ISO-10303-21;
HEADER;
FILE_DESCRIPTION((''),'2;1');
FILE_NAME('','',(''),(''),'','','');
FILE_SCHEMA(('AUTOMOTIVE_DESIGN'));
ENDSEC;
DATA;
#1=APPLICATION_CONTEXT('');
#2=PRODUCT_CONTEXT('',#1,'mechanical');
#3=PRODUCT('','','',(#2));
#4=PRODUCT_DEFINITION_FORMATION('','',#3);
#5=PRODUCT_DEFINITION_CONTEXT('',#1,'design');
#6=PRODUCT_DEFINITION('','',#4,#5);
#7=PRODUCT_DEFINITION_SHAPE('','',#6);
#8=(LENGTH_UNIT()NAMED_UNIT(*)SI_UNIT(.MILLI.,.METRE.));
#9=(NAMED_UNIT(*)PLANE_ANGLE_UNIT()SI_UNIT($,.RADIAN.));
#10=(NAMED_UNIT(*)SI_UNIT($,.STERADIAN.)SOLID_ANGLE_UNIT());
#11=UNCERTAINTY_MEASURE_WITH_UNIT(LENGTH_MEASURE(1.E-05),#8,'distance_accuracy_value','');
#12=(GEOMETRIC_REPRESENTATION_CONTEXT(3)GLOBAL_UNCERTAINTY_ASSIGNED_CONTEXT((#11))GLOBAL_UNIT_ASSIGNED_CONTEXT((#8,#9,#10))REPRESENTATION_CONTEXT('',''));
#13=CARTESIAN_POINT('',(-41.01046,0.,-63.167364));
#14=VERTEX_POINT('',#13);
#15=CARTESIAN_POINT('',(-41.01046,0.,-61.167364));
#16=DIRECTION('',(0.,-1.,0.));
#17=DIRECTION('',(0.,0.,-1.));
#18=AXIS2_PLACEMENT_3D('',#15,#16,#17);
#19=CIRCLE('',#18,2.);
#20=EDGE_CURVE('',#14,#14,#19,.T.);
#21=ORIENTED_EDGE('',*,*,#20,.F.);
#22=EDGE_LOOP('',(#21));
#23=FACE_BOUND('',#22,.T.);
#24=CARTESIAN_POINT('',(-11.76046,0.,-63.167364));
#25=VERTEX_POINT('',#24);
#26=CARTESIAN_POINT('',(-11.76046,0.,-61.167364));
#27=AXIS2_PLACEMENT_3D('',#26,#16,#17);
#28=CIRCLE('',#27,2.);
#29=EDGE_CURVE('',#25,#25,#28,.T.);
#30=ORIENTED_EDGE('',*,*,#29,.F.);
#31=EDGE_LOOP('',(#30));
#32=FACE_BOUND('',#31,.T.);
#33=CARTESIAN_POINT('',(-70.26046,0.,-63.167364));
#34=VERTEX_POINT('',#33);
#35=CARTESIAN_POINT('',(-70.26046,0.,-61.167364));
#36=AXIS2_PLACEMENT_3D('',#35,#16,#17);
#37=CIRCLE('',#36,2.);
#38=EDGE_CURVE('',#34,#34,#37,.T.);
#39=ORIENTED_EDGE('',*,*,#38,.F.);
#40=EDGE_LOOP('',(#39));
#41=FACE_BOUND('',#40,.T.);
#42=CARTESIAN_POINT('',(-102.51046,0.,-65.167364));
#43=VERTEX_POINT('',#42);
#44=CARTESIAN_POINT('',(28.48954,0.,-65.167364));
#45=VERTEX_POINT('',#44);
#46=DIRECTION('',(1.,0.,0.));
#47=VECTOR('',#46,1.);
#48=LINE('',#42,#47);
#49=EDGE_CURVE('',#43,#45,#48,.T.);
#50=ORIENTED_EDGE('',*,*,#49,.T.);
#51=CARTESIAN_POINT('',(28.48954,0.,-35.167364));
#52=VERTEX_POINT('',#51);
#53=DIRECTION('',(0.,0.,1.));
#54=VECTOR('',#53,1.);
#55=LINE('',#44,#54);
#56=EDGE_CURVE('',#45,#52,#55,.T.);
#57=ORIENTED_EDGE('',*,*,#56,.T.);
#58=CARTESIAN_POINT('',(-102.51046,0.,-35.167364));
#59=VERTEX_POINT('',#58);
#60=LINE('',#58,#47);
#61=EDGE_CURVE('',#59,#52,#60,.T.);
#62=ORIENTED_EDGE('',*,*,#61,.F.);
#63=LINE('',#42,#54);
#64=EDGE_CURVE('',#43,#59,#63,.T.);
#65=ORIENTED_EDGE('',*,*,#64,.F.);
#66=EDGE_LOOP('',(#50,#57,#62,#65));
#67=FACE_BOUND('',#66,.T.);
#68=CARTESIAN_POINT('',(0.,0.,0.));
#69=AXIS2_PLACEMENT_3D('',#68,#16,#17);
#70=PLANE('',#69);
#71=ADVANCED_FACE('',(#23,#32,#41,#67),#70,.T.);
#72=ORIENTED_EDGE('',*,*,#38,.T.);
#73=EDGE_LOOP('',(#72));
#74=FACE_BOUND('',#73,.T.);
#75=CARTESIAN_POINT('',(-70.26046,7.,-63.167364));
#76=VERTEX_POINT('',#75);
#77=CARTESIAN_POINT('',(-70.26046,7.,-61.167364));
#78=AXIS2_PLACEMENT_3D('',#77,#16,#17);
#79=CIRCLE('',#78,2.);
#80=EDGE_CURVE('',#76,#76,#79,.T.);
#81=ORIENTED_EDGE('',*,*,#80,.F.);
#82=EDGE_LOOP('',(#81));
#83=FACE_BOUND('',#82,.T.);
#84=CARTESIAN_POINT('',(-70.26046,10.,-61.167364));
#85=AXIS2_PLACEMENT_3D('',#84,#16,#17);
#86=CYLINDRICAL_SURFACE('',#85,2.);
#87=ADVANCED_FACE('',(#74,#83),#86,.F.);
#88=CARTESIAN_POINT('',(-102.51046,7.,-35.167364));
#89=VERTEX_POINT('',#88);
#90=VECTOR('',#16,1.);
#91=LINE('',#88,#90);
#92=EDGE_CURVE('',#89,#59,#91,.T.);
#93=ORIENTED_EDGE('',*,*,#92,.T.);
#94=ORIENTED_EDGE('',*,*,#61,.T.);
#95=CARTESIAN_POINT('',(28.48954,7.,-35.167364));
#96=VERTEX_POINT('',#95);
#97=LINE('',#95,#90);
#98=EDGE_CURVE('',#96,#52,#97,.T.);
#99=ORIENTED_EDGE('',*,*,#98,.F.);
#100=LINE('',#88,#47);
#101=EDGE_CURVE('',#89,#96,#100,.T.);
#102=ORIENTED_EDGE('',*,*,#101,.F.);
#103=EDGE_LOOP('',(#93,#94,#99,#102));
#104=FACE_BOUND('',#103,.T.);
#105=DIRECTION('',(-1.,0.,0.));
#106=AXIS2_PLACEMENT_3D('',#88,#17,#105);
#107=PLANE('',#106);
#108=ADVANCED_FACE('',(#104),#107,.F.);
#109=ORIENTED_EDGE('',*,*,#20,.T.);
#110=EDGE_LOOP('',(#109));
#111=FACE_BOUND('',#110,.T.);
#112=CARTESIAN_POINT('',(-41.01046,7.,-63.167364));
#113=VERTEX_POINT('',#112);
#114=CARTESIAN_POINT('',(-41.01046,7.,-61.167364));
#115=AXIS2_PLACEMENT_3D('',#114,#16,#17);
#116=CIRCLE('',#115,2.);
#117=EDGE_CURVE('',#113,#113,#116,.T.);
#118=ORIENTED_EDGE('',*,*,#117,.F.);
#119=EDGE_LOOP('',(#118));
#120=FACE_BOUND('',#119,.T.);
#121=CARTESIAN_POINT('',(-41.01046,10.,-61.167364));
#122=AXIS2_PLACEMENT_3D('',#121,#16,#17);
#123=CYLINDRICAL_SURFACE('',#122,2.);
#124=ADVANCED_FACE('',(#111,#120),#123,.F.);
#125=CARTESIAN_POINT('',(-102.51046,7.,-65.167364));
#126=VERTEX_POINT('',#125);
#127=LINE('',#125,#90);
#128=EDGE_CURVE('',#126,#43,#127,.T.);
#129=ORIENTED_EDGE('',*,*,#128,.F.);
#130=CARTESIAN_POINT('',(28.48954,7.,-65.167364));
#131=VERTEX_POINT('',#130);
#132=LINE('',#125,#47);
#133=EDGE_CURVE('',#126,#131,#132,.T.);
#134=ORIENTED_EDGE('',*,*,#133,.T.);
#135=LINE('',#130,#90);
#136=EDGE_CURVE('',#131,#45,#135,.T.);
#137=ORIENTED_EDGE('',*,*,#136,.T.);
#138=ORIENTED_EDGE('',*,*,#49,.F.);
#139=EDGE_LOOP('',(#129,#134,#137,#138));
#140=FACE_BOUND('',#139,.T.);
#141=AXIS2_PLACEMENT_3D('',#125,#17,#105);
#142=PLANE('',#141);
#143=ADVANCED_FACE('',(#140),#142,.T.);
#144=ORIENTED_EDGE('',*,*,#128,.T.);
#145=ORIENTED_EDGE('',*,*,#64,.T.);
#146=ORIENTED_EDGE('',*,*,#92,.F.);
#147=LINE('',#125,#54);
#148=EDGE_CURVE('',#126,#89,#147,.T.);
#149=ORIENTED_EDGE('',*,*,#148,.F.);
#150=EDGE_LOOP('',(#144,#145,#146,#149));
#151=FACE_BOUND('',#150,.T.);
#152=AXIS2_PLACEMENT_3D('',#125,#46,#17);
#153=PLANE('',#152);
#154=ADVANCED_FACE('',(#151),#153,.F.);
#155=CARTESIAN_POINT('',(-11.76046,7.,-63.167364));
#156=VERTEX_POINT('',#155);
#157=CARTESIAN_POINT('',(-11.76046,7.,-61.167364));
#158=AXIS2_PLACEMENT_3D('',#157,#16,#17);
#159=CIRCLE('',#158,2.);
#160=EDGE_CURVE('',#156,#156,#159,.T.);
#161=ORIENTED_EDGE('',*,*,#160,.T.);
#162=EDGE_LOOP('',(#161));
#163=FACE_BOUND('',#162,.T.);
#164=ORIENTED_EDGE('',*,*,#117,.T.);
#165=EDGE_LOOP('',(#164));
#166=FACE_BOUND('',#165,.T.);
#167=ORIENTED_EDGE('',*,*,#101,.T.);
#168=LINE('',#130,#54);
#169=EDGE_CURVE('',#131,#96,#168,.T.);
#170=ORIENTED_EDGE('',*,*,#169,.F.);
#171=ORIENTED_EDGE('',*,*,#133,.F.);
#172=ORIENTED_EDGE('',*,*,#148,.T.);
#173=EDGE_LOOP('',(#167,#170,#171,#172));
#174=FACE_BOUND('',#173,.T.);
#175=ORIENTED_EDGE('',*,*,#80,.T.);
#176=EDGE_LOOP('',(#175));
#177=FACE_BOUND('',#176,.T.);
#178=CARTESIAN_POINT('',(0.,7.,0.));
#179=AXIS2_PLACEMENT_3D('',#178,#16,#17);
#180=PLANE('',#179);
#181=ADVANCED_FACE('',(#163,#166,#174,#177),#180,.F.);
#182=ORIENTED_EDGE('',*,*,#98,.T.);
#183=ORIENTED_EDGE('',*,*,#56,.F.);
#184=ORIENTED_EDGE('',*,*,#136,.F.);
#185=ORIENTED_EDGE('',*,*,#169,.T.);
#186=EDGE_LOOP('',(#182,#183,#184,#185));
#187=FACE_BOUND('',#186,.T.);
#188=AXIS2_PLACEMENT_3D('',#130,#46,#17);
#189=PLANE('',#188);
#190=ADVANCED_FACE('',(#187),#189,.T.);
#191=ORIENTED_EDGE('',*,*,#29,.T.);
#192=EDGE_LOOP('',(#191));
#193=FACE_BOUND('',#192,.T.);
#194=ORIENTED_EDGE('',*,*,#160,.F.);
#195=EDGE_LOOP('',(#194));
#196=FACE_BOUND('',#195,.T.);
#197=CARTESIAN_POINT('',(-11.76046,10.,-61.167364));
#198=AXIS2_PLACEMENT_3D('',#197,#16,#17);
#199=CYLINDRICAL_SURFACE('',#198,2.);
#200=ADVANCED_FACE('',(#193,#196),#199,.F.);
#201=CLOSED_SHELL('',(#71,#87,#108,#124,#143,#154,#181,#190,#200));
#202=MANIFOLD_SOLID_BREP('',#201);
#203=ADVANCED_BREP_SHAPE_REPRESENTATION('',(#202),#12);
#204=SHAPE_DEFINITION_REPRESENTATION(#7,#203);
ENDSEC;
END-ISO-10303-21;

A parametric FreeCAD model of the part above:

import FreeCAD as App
import Part
import Sketcher
from FreeCAD import Vector
Q = App.Units.Quantity

doc = App.newDocument("Part")
body = doc.addObject("PartDesign::Body", "Body")

sketch1 = doc.addObject("Sketcher::SketchObject", "Sketch")
body.addObject(sketch1)
sketch1.AttachmentSupport = (doc.XZ_Plane, [""])
sketch1.MapMode = "FlatFace"
sketch1.addGeometry([
    Part.LineSegment(Vector(-103, -65, 0), Vector(-103, -35, 0)),
    Part.LineSegment(Vector(-103, -35, 0), Vector(28, -35, 0)),
    Part.LineSegment(Vector(28, -35, 0), Vector(28, -65, 0)),
    Part.LineSegment(Vector(28, -65, 0), Vector(-103, -65, 0)),
], False)
sketch1.addConstraint([
    Sketcher.Constraint("Coincident", 0, 2, 1, 1),
    Sketcher.Constraint("Coincident", 1, 2, 2, 1),
    Sketcher.Constraint("Coincident", 2, 2, 3, 1),
    Sketcher.Constraint("Coincident", 3, 2, 0, 1),
    Sketcher.Constraint("Vertical", 0),
    Sketcher.Constraint("Horizontal", 1),
    Sketcher.Constraint("Vertical", 2),
    Sketcher.Constraint("Horizontal", 3),
    Sketcher.Constraint("DistanceX", 1, 1, 1, 2, Q("131 mm")),
    Sketcher.Constraint("DistanceY", 0, 1, 0, 2, Q("30 mm")),
    Sketcher.Constraint("DistanceX", 0, 2, -1, 1, Q("102.51046 mm")),
    Sketcher.Constraint("DistanceY", 0, 2, -1, 1, Q("35.167364 mm")),
])
pad1 = doc.addObject("PartDesign::Pad", "Pad")
body.addObject(pad1)
pad1.Profile = sketch1
pad1.Length = 7
pad1.Reversed = True

sketch2 = doc.addObject("Sketcher::SketchObject", "Sketch001")
body.addObject(sketch2)
sketch2.AttachmentSupport = (doc.XZ_Plane, [""])
sketch2.MapMode = "FlatFace"
sketch2.addGeometry([
    Part.Circle(Vector(-70.3, -61.2, 0), Vector(0, 0, 1), 2),
    Part.Circle(Vector(-41, -61.2, 0), Vector(0, 0, 1), 2),
    Part.Circle(Vector(-11.8, -61.2, 0), Vector(0, 0, 1), 2),
], False)
sketch2.addConstraint([
    Sketcher.Constraint("Equal", 0, 1),
    Sketcher.Constraint("Equal", 1, 2),
    Sketcher.Constraint("Horizontal", 0, 3, 1, 3),
    Sketcher.Constraint("Horizontal", 1, 3, 2, 3),
    Sketcher.Constraint("Diameter", 0, Q("4 mm")),
    Sketcher.Constraint("DistanceX", 0, 3, 2, 3, Q("58.5 mm")),
    Sketcher.Constraint("DistanceX", 0, 3, 1, 3, Q("29.25 mm")),
    Sketcher.Constraint("DistanceX", 0, 3, -1, 1, Q("70.26046 mm")),
    Sketcher.Constraint("DistanceY", 0, 3, -1, 1, Q("61.167364 mm")),
])
pocket1 = doc.addObject("PartDesign::Pocket", "Pocket")
body.addObject(pocket1)
pocket1.Profile = sketch2
pocket1.Length = 10

doc.recompute()
